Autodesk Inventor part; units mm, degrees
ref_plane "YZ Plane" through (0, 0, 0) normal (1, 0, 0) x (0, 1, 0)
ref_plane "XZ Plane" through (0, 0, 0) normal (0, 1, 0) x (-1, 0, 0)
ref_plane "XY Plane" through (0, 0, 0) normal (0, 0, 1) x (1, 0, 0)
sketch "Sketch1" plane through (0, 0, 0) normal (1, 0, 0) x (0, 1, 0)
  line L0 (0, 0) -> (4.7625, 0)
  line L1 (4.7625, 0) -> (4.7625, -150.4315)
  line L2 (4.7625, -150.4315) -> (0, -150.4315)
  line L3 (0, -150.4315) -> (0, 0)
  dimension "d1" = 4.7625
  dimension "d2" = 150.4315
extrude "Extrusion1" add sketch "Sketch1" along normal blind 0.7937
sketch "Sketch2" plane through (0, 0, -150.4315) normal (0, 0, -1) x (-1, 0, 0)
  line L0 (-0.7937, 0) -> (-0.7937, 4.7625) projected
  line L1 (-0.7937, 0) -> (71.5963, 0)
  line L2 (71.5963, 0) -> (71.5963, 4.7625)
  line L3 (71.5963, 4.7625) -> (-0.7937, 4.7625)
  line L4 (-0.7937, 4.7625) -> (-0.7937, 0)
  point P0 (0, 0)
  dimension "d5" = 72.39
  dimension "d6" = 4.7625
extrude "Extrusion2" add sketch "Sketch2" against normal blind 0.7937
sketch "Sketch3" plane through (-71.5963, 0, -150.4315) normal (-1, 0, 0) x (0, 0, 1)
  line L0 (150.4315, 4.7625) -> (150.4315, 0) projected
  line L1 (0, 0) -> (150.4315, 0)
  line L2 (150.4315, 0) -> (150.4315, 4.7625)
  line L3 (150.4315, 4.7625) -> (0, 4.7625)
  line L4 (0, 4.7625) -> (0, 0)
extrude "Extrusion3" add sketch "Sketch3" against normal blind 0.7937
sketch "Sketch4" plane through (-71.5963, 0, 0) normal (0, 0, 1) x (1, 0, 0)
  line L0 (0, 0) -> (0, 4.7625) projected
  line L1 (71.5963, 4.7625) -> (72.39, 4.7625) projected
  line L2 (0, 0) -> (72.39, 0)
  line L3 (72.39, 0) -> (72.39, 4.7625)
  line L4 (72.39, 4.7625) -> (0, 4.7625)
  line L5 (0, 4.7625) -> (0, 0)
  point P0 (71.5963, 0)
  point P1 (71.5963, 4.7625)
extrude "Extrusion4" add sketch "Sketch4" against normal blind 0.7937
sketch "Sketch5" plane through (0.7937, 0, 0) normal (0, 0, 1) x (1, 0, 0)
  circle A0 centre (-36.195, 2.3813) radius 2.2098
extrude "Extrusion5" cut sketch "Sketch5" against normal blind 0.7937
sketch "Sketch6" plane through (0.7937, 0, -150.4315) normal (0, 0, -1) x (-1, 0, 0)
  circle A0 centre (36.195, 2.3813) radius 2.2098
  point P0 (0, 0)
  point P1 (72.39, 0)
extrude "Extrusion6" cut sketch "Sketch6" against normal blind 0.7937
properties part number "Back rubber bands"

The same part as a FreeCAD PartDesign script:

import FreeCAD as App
import Part
import Sketcher

V = App.Vector
Q = App.Units.Quantity


def add_polygon(sketch, points):
    """Adds a closed chain of lines whose ends are joined by coincident constraints."""
    first, n = sketch.GeometryCount, len(points)
    for a, b in zip(points, points[1:] + points[:1]):
        sketch.addGeometry(Part.LineSegment(App.Vector(*a, 0), App.Vector(*b, 0)), False)
    for i in range(n):
        sketch.addConstraint(Sketcher.Constraint("Coincident", first + i, 2, first + (i + 1) % n, 1))

doc = App.newDocument("Part")
body = doc.addObject("PartDesign::Body", "Body")

sketch1 = body.newObject("Sketcher::SketchObject", "Sketch")
sketch1.AttachmentSupport = (doc.getObject("YZ_Plane"), [""])
sketch1.MapMode = "FlatFace"
add_polygon(sketch1, [(4.8, 0), (0, 0), (0, -150.4), (4.8, -150.4)])
sketch1.addConstraint([
    Sketcher.Constraint("Horizontal", 0),
    Sketcher.Constraint("Vertical", 1),
    Sketcher.Constraint("Horizontal", 2),
    Sketcher.Constraint("Vertical", 3),
    Sketcher.Constraint("Coincident", 0, 2, -1, 1),
    Sketcher.Constraint("DistanceX", 0, 2, 0, 1, Q("0.1875 in")),
    Sketcher.Constraint("DistanceY", 1, 2, 1, 1, Q("5.9225 in")),
])
pad1 = body.newObject("PartDesign::Pad", "Pad")
pad1.Profile = sketch1
pad1.Length = Q("0.031248 in")

sketch2 = body.newObject("Sketcher::SketchObject", "Sketch001")
sketch2.AttachmentSupport = (doc.getObject("XY_Plane"), [""])
sketch2.MapMode = "FlatFace"
sketch2.AttachmentOffset = App.Placement(V(0, 0, -5.9225 * 25.4), App.Rotation())
add_polygon(sketch2, [(0.8, 4.8), (0.8, 0), (-71.6, 0), (-71.6, 4.8)])
sketch2.addConstraint([
    Sketcher.Constraint("Vertical", 0),
    Sketcher.Constraint("Horizontal", 1),
    Sketcher.Constraint("Vertical", 2),
    Sketcher.Constraint("Horizontal", 3),
    Sketcher.Constraint("PointOnObject", 0, 2, -1),
    Sketcher.Constraint("DistanceX", 1, 2, 1, 1, Q("2.85 in")),
    Sketcher.Constraint("DistanceY", 0, 2, 0, 1, Q("0.1875 in")),
    Sketcher.Constraint("DistanceX", -1, 1, 0, 2, Q("0.031248 in")),
])
pad2 = body.newObject("PartDesign::Pad", "Pad001")
pad2.Profile = sketch2
pad2.Length = Q("0.031248 in")

sketch3 = body.newObject("Sketcher::SketchObject", "Sketch002")
sketch3.AttachmentSupport = (doc.getObject("YZ_Plane"), [""])
sketch3.MapMode = "FlatFace"
sketch3.AttachmentOffset = App.Placement(V(0, 0, -71.5963), App.Rotation())
add_polygon(sketch3, [(0, 0), (4.8, 0), (4.8, -150.4), (0, -150.4)])
sketch3.addConstraint([
    Sketcher.Constraint("Horizontal", 0),
    Sketcher.Constraint("Vertical", 1),
    Sketcher.Constraint("Horizontal", 2),
    Sketcher.Constraint("Vertical", 3),
    Sketcher.Constraint("Coincident", 3, 2, -1, 1),
    Sketcher.Constraint("DistanceX", 0, 1, 0, 2, Q("0.1875 in")),
    Sketcher.Constraint("DistanceY", 1, 2, 1, 1, Q("5.9225 in")),
])
pad3 = body.newObject("PartDesign::Pad", "Pad002")
pad3.Profile = sketch3
pad3.Length = Q("0.031248 in")

sketch4 = body.newObject("Sketcher::SketchObject", "Sketch003")
sketch4.AttachmentSupport = (doc.getObject("XY_Plane"), [""])
sketch4.MapMode = "FlatFace"
add_polygon(sketch4, [(-71.6, 4.8), (-71.6, 0), (0.8, 0), (0.8, 4.8)])
sketch4.addConstraint([
    Sketcher.Constraint("Vertical", 0),
    Sketcher.Constraint("Horizontal", 1),
    Sketcher.Constraint("Vertical", 2),
    Sketcher.Constraint("Horizontal", 3),
    Sketcher.Constraint("PointOnObject", 0, 2, -1),
    Sketcher.Constraint("DistanceX", 1, 1, 1, 2, Q("2.85 in")),
    Sketcher.Constraint("DistanceY", 0, 2, 0, 1, Q("0.1875 in")),
    Sketcher.Constraint("DistanceX", -1, 1, 1, 2, Q("0.031248 in")),
])
pad4 = body.newObject("PartDesign::Pad", "Pad003")
pad4.Profile = sketch4
pad4.Length = Q("0.031248 in")
pad4.Reversed = True

sketch5 = body.newObject("Sketcher::SketchObject", "Sketch004")
sketch5.AttachmentSupport = (doc.getObject("XY_Plane"), [""])
sketch5.MapMode = "FlatFace"
sketch5.addGeometry(Part.Circle(V(-35.4, 2.4, 0), V(0, 0, 1), 2.2), False)
sketch5.addConstraint([
    Sketcher.Constraint("Diameter", 0, Q("0.174 in")),
    Sketcher.Constraint("DistanceY", -1, 1, 0, 3, Q("0.093752 in")),
    Sketcher.Constraint("DistanceX", 0, 3, -1, 1, 35.4013),
])
pocket1 = body.newObject("PartDesign::Pocket", "Pocket")
pocket1.Profile = sketch5
pocket1.Length = Q("0.031248 in")

sketch6 = body.newObject("Sketcher::SketchObject", "Sketch005")
sketch6.AttachmentSupport = (doc.getObject("XY_Plane"), [""])
sketch6.MapMode = "FlatFace"
sketch6.AttachmentOffset = App.Placement(V(0, 0, -5.9225 * 25.4), App.Rotation())
sketch6.addGeometry(Part.Circle(V(-35.4, 2.4, 0), V(0, 0, 1), 2.2), False)
sketch6.addConstraint([
    Sketcher.Constraint("Diameter", 0, Q("0.174 in")),
    Sketcher.Constraint("DistanceY", -1, 1, 0, 3, Q("0.093752 in")),
    Sketcher.Constraint("DistanceX", 0, 3, -1, 1, 35.4013),
])
pocket2 = body.newObject("PartDesign::Pocket", "Pocket001")
pocket2.Profile = sketch6
pocket2.Length = Q("0.031248 in")
pocket2.Reversed = True

doc.recompute()
